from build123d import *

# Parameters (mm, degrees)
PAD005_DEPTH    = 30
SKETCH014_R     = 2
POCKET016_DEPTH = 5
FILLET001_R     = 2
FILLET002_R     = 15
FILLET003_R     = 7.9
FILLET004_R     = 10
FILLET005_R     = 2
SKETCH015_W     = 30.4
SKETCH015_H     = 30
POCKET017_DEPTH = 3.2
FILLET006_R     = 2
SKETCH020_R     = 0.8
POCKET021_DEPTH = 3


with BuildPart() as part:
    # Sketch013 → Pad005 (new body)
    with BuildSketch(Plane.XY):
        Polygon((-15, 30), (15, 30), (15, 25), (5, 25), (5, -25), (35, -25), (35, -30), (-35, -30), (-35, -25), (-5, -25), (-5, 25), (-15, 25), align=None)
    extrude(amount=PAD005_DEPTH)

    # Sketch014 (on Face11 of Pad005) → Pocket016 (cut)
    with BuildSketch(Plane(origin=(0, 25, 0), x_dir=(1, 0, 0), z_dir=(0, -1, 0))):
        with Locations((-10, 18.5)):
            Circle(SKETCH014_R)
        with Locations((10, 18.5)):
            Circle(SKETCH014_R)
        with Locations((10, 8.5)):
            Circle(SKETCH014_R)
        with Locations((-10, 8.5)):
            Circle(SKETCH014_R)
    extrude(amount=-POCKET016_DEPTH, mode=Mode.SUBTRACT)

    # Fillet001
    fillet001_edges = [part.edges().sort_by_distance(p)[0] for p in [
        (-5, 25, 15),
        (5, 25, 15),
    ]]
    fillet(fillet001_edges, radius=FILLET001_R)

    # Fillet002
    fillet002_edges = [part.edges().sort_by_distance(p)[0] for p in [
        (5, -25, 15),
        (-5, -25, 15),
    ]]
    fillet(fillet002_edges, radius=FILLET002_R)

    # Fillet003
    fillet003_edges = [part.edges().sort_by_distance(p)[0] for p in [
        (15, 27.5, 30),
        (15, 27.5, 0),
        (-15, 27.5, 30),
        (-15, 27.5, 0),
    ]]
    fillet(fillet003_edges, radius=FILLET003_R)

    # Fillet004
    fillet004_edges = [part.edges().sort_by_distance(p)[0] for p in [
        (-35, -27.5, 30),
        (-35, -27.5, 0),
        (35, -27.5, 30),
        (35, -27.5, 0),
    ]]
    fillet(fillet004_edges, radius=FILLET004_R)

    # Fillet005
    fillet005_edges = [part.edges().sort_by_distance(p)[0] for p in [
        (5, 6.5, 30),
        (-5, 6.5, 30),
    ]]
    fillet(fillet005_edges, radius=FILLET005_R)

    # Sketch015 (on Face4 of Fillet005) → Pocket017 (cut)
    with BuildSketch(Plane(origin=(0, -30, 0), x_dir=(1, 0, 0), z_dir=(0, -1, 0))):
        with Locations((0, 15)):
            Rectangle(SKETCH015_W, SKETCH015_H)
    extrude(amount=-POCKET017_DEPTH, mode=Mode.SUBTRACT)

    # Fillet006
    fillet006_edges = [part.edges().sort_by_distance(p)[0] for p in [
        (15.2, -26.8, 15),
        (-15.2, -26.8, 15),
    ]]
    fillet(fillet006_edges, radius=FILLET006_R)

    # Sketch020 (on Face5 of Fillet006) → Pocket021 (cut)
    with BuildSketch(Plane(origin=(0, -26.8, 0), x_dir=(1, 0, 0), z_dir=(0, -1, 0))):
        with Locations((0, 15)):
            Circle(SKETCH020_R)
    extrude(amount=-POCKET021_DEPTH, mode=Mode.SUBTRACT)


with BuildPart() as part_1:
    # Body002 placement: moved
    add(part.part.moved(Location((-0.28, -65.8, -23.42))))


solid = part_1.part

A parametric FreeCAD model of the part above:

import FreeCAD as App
import Part
import Sketcher

V = App.Vector


def edges_at(feature, points):
    """Names of the edges that pass closest to the given points."""
    edges = feature.Shape.Edges
    near = lambda p: min(range(len(edges)), key=lambda i: edges[i].distToShape(Part.Vertex(*p))[0])
    return sorted({f"Edge{near(p) + 1}" for p in points})


def add_polygon(sketch, points):
    """Adds a closed chain of lines whose ends are joined by coincident constraints."""
    first, n = sketch.GeometryCount, len(points)
    for a, b in zip(points, points[1:] + points[:1]):
        sketch.addGeometry(Part.LineSegment(App.Vector(*a, 0), App.Vector(*b, 0)), False)
    for i in range(n):
        sketch.addConstraint(Sketcher.Constraint("Coincident", first + i, 2, first + (i + 1) % n, 1))

doc = App.newDocument("Part")
params = doc.addObject("Spreadsheet::Sheet", "Params")
for row, (alias, value) in enumerate([
    ("sketch1_width", "30 mm"),
    ("sketch1_width2", "10 mm"),
    ("sketch1_height", "5 mm"),
    ("sketch1_height2", "50 mm"),
    ("pad1_length", "30 mm"),
    ("sketch2_diameter", "4 mm"),
    ("pocket1_length", "5 mm"),
    ("fillet_radius", "2 mm"),
    ("fillet2_radius", "15 mm"),
    ("fillet3_radius", "7.9 mm"),
    ("fillet4_radius", "10 mm"),
    ("fillet5_radius", "2 mm"),
    ("sketch3_height", "30 mm"),
    ("sketch3_width", "30.4 mm"),
    ("pocket2_length", "3.2 mm"),
    ("fillet6_radius", "2 mm"),
    ("sketch4_diameter", "1.6 mm"),
    ("pocket3_length", "3 mm"),
], start=1):
    params.set(f"A{row}", alias)
    params.set(f"B{row}", "=" + value)
    params.setAlias(f"B{row}", alias)

body = doc.addObject("PartDesign::Body", "Body")

# Sketch on XY plane
sketch1 = body.newObject("Sketcher::SketchObject", "Sketch")
sketch1.AttachmentSupport = (doc.getObject("XY_Plane"), [""])
sketch1.MapMode = "FlatFace"
add_polygon(sketch1, [(15, 30), (-15, 30), (-15, 25), (-5, 25), (-5, -25), (-35, -25), (-35, -30), (35, -30), (35, -25), (5, -25), (5, 25), (15, 25)])  # lines 0-11
sketch1.addConstraint([
    Sketcher.Constraint("Horizontal", 0),
    Sketcher.Constraint("Vertical", 1),
    Sketcher.Constraint("Horizontal", 2),
    Sketcher.Constraint("Vertical", 3),
    Sketcher.Constraint("Horizontal", 4),
    Sketcher.Constraint("Vertical", 5),
    Sketcher.Constraint("Horizontal", 6),
    Sketcher.Constraint("Vertical", 7),
    Sketcher.Constraint("Horizontal", 8),
    Sketcher.Constraint("Vertical", 9),
    Sketcher.Constraint("Horizontal", 10),
    Sketcher.Constraint("Vertical", 11),
    Sketcher.Constraint("Symmetric", 2, 2, 8, 2, -1, 1),
    Sketcher.Constraint("Symmetric", 4, 2, 7, 2, -2),
    Sketcher.Constraint("Symmetric", 1, 2, 10, 2, -2),
    Sketcher.Constraint("Equal", 0, 4),
    Sketcher.Constraint("Equal", 1, 5),
    Sketcher.Constraint("DistanceX", 0, 2, 0, 1, 30.0),
    Sketcher.Constraint("DistanceX", 2, 1, 2, 2, 10.0),
    Sketcher.Constraint("DistanceY", 1, 2, 1, 1, 5.0),
    Sketcher.Constraint("DistanceY", 3, 2, 3, 1, 50.0),
])
sketch1.setExpression("Constraints[29]", "Params.sketch1_width")
sketch1.setExpression("Constraints[30]", "Params.sketch1_width2")
sketch1.setExpression("Constraints[31]", "Params.sketch1_height")
sketch1.setExpression("Constraints[32]", "Params.sketch1_height2")
pad1 = body.newObject("PartDesign::Pad", "Pad")
pad1.Profile = sketch1
pad1.setExpression("Length", "Params.pad1_length")

# Sketch on XZ plane
sketch2 = body.newObject("Sketcher::SketchObject", "Sketch001")
sketch2.AttachmentSupport = (doc.getObject("XZ_Plane"), [""])
sketch2.MapMode = "FlatFace"
sketch2.AttachmentOffset = App.Placement(V(0, 0, -25), App.Rotation())
sketch2.addGeometry([
    Part.Circle(V(-10, 18.5, 0), V(0, 0, 1), 2),
    Part.Circle(V(10, 18.5, 0), V(0, 0, 1), 2),
    Part.Circle(V(10, 8.5, 0), V(0, 0, 1), 2),
    Part.Circle(V(-10, 8.5, 0), V(0, 0, 1), 2),
], False)
sketch2.addConstraint([
    Sketcher.Constraint("Equal", 0, 1),
    Sketcher.Constraint("Equal", 1, 2),
    Sketcher.Constraint("Equal", 2, 3),
    Sketcher.Constraint("Symmetric", 0, 3, 1, 3, -2),
    Sketcher.Constraint("Symmetric", 2, 3, 3, 3, -2),
    Sketcher.Constraint("Vertical", 1, 3, 2, 3),
    Sketcher.Constraint("Diameter", 0, 4.0),
    Sketcher.Constraint("DistanceX", 0, 3, -1, 1, 10.0),
    Sketcher.Constraint("DistanceY", 2, 3, 1, 3, 10.0),
    Sketcher.Constraint("DistanceY", -1, 1, 0, 3, 18.5),
])
sketch2.setExpression("Constraints[6]", "Params.sketch2_diameter")
pocket1 = body.newObject("PartDesign::Pocket", "Pocket")
pocket1.Profile = sketch2
pocket1.setExpression("Length", "Params.pocket1_length")
doc.recompute()

fillet = body.newObject("PartDesign::Fillet", "Fillet")
fillet.Base = (pocket1, edges_at(pocket1, [(-5, 25, 15), (5, 25, 15)]))
fillet.setExpression("Radius", "Params.fillet_radius")
doc.recompute()

fillet2 = body.newObject("PartDesign::Fillet", "Fillet001")
fillet2.Base = (fillet, edges_at(fillet, [(5, -25, 15), (-5, -25, 15)]))
fillet2.setExpression("Radius", "Params.fillet2_radius")
doc.recompute()

fillet3 = body.newObject("PartDesign::Fillet", "Fillet002")
fillet3.Base = (fillet2, edges_at(fillet2, [
    (15, 27.5, 30),
    (15, 27.5, 0),
    (-15, 27.5, 30),
    (-15, 27.5, 0),
]))
fillet3.setExpression("Radius", "Params.fillet3_radius")
doc.recompute()

fillet4 = body.newObject("PartDesign::Fillet", "Fillet003")
fillet4.Base = (fillet3, edges_at(fillet3, [
    (-35, -27.5, 30),
    (-35, -27.5, 0),
    (35, -27.5, 30),
    (35, -27.5, 0),
]))
fillet4.setExpression("Radius", "Params.fillet4_radius")
doc.recompute()

fillet5 = body.newObject("PartDesign::Fillet", "Fillet004")
fillet5.Base = (fillet4, edges_at(fillet4, [(5, 6.5, 30), (-5, 6.5, 30)]))
fillet5.setExpression("Radius", "Params.fillet5_radius")

# Sketch on XZ plane
sketch3 = body.newObject("Sketcher::SketchObject", "Sketch002")
sketch3.AttachmentSupport = (doc.getObject("XZ_Plane"), [""])
sketch3.MapMode = "FlatFace"
sketch3.AttachmentOffset = App.Placement(V(0, 0, 30), App.Rotation())
add_polygon(sketch3, [(-15.2, 30), (-15.2, 0), (15.2, 0), (15.2, 30)])  # lines 0-3
sketch3.addConstraint([
    Sketcher.Constraint("Vertical", 0),
    Sketcher.Constraint("Horizontal", 1),
    Sketcher.Constraint("Vertical", 2),
    Sketcher.Constraint("Horizontal", 3),
    Sketcher.Constraint("Symmetric", 0, 2, 1, 2, -1, 1),
    Sketcher.Constraint("DistanceY", 0, 2, 0, 1, 30.0),
    Sketcher.Constraint("DistanceX", 1, 1, 1, 2, 30.4),
])
sketch3.setExpression("Constraints[9]", "Params.sketch3_height")
sketch3.setExpression("Constraints[10]", "Params.sketch3_width")
pocket2 = body.newObject("PartDesign::Pocket", "Pocket001")
pocket2.Profile = sketch3
pocket2.setExpression("Length", "Params.pocket2_length")
doc.recompute()

fillet6 = body.newObject("PartDesign::Fillet", "Fillet005")
fillet6.Base = (pocket2, edges_at(pocket2, [(15.2, -26.8, 15), (-15.2, -26.8, 15)]))
fillet6.setExpression("Radius", "Params.fillet6_radius")

# Sketch on XZ plane
sketch4 = body.newObject("Sketcher::SketchObject", "Sketch003")
sketch4.AttachmentSupport = (doc.getObject("XZ_Plane"), [""])
sketch4.MapMode = "FlatFace"
sketch4.AttachmentOffset = App.Placement(V(0, 0, 26.8), App.Rotation())
sketch4.addGeometry(Part.Circle(V(0, 15, 0), V(0, 0, 1), 0.8), False)
sketch4.addConstraint([
    Sketcher.Constraint("PointOnObject", 0, 3, -2),
    Sketcher.Constraint("Diameter", 0, 1.6),
    Sketcher.Constraint("DistanceY", -1, 1, 0, 3, 15.0),
])
sketch4.setExpression("Constraints[1]", "Params.sketch4_diameter")
pocket3 = body.newObject("PartDesign::Pocket", "Pocket002")
pocket3.Profile = sketch4
pocket3.setExpression("Length", "Params.pocket3_length")
body2 = doc.addObject("PartDesign::Body", "Body001")
doc.recompute()

body.Placement = App.Placement(V(-0.28, -65.8, -23.42), App.Rotation(V(0, 0, 1), 0))
boolean = body2.newObject("PartDesign::Boolean", "Boolean")
boolean.Type = "Fuse"
boolean.addObjects([body])

doc.recompute()
